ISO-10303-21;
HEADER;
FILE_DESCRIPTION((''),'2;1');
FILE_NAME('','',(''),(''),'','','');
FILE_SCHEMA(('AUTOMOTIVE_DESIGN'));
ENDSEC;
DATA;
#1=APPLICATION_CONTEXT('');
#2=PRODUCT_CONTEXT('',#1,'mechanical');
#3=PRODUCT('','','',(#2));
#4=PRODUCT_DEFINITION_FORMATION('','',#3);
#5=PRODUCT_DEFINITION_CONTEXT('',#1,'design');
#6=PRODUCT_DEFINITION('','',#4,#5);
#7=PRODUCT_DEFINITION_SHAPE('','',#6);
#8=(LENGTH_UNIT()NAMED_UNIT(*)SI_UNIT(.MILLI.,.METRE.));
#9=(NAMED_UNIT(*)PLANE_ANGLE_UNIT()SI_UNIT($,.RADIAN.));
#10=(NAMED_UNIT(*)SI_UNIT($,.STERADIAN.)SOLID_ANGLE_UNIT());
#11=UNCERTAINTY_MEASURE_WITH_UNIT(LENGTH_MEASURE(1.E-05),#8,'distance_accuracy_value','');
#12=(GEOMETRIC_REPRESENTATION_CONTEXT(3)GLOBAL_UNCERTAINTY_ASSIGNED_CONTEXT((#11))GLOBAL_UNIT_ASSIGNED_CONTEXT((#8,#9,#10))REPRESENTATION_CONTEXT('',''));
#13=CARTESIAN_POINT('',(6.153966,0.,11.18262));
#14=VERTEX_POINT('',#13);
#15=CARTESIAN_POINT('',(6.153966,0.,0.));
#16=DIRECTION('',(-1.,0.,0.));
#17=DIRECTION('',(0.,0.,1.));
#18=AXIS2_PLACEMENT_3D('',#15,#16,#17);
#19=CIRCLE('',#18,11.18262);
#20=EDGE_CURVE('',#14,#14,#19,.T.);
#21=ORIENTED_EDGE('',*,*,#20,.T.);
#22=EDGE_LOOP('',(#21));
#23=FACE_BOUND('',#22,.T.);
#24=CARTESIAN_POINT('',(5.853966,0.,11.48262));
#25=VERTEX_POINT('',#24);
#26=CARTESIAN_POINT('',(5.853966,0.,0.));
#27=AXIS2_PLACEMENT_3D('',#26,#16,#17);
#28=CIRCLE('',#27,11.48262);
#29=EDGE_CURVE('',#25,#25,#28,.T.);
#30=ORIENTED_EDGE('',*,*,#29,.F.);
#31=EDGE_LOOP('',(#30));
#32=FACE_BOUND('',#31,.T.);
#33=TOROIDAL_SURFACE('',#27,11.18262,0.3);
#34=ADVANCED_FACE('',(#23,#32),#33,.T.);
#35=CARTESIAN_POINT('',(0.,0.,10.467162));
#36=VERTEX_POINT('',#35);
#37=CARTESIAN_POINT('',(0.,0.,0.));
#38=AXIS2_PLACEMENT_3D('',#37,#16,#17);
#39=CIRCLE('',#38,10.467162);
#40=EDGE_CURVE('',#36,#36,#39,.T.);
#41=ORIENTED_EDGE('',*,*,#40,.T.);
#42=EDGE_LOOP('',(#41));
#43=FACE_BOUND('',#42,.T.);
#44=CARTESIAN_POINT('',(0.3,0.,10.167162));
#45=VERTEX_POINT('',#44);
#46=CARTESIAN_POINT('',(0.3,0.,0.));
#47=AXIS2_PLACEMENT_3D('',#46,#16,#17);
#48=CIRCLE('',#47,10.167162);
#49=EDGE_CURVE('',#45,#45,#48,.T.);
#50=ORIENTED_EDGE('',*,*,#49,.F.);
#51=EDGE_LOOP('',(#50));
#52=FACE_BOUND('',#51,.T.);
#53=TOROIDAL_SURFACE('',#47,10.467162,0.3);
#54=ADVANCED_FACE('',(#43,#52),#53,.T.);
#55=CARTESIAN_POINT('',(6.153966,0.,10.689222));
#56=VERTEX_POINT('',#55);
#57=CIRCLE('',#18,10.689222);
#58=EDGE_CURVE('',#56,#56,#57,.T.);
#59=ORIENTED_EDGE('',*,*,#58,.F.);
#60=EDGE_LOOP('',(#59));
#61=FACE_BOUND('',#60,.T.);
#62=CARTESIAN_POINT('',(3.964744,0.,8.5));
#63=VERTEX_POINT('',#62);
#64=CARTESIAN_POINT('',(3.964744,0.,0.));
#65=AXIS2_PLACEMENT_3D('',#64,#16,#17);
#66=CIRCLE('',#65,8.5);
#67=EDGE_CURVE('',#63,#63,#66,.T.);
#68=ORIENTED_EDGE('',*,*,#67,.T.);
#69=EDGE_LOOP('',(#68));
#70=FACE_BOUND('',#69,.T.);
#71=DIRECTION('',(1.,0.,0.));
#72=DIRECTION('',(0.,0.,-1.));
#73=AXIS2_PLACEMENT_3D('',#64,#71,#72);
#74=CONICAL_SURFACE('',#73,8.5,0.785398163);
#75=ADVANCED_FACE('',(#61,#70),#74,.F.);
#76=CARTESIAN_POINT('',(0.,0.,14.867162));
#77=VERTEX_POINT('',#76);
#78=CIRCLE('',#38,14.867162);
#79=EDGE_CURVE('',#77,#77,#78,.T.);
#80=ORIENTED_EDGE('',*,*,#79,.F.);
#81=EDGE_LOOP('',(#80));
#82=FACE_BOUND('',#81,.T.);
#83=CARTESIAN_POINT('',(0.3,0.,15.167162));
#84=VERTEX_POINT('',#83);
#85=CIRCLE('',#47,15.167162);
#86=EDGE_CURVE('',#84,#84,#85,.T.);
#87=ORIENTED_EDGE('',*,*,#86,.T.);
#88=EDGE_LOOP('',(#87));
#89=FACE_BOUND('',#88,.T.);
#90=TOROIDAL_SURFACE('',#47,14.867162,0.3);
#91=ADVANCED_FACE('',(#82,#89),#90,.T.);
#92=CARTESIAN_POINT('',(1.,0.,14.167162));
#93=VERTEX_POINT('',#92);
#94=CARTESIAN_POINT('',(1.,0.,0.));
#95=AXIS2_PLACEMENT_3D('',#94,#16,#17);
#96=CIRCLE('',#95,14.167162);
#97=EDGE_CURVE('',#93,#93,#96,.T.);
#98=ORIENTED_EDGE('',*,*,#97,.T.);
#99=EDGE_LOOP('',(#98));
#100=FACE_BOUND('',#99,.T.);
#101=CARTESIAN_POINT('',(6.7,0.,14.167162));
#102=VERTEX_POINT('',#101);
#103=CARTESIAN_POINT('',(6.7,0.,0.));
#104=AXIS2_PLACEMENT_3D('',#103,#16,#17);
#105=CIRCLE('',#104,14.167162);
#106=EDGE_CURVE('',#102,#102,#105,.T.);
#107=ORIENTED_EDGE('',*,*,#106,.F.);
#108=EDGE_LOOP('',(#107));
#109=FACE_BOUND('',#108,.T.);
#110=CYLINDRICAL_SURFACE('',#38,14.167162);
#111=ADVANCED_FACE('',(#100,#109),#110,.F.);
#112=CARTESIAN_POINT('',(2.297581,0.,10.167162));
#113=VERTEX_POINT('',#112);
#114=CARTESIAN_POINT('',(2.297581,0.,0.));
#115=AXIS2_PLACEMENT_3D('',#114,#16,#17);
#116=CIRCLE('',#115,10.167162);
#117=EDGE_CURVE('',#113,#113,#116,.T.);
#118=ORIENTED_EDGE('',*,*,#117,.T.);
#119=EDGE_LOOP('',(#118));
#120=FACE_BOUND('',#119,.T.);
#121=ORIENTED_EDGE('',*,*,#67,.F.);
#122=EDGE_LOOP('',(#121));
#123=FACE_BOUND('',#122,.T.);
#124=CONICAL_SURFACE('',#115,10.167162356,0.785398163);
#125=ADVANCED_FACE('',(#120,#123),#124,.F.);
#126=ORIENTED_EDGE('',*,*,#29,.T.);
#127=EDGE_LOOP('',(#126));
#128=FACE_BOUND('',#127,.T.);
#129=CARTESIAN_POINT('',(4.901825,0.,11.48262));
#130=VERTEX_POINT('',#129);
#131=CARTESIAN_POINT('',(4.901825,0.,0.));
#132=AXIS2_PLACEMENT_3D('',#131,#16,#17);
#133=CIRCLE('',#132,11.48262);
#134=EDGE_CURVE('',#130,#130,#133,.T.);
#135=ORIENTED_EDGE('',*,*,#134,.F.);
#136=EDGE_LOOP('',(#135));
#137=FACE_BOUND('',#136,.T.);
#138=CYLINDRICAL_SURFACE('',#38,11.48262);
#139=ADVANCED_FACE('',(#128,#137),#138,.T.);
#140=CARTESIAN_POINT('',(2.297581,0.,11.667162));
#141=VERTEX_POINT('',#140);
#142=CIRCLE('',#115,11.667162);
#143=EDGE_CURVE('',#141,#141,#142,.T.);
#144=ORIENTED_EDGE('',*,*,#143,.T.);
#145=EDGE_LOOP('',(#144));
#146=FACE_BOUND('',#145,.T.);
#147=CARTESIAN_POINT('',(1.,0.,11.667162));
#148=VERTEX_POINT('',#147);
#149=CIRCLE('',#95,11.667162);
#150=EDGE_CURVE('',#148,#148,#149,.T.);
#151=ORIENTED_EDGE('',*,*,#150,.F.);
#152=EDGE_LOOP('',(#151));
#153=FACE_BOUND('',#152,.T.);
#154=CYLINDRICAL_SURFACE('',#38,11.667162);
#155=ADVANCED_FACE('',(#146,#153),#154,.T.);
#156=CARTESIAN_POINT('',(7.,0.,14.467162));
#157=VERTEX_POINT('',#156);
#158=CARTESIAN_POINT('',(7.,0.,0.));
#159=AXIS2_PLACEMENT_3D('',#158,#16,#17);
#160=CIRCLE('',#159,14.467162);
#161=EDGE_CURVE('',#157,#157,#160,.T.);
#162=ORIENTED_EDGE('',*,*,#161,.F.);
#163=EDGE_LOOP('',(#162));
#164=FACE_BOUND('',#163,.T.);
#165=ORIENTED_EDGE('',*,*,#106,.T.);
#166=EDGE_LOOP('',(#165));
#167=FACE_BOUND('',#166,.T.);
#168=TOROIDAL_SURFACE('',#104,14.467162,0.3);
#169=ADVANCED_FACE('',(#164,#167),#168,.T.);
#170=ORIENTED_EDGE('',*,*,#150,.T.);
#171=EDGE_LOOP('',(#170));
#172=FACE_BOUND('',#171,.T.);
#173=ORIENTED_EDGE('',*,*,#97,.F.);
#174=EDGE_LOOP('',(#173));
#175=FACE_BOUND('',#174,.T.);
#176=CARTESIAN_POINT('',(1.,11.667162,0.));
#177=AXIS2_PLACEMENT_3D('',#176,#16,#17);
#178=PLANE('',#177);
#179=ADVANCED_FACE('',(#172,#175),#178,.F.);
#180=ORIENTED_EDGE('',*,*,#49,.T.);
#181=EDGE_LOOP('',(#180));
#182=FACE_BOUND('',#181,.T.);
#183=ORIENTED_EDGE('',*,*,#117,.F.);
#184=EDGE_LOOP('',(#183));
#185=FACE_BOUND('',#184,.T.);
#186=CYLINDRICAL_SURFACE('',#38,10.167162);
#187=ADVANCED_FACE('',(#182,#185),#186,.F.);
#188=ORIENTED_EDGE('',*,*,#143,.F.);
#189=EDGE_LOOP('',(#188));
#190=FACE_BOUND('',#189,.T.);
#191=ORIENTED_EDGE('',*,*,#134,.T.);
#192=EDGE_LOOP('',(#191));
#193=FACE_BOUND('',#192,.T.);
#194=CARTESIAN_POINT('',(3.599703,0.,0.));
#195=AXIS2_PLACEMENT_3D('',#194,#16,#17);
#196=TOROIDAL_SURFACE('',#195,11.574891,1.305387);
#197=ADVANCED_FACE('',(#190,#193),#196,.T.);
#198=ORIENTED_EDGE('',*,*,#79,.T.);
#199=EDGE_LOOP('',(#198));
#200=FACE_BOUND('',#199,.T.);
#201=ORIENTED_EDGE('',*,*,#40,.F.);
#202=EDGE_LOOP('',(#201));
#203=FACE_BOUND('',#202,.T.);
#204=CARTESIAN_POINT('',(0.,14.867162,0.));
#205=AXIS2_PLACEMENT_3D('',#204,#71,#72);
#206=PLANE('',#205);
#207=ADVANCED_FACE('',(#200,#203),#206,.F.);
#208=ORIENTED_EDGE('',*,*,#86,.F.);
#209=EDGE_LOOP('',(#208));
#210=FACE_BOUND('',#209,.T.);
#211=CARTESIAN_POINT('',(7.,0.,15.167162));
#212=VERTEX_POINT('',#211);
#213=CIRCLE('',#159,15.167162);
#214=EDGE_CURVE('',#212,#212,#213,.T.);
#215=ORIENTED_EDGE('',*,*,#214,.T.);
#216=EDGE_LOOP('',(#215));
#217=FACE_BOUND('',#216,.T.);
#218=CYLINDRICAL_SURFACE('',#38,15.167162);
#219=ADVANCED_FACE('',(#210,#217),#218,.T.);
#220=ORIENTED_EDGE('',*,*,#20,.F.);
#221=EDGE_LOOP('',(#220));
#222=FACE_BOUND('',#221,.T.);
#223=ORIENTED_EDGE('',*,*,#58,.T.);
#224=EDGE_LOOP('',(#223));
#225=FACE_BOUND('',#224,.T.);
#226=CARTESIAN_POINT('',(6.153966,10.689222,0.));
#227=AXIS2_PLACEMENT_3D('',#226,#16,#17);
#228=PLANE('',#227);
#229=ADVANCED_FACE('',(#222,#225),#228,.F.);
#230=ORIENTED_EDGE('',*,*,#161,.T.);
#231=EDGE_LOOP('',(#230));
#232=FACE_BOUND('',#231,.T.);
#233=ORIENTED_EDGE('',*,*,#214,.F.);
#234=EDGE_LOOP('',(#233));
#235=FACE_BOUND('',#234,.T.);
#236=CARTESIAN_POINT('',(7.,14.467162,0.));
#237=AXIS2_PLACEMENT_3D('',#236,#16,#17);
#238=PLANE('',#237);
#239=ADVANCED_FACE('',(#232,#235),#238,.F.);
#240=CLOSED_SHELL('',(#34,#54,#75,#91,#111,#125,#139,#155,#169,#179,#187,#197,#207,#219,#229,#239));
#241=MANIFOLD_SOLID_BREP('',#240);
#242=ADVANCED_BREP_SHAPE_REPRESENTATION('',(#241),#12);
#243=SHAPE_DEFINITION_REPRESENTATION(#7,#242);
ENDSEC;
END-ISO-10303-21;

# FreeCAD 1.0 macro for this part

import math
import FreeCAD as App
import Part
import Sketcher
Q = App.Units.Quantity

doc = App.newDocument("Part")
body = doc.addObject("PartDesign::Body", "Body")

# Sketch on XY plane
sketch1 = body.newObject("Sketcher::SketchObject", "Sketch")
sketch1.AttachmentSupport = (doc.getObject("XY_Plane"), [""])
sketch1.MapMode = "FlatFace"
sketch1.addGeometry(Part.LineSegment(App.Vector(7, 15.17, 0), App.Vector(0.3, 15.17, 0)), False)
sketch1.addGeometry(Part.ArcOfCircle(Part.Circle(App.Vector(0.3, 14.87, 0), App.Vector(0, 0, 1), 0.3), math.radians(90), math.radians(180)), False)
sketch1.addGeometry(Part.LineSegment(App.Vector(0, 14.87, 0), App.Vector(0, 10.47, 0)), False)
sketch1.addGeometry(Part.ArcOfCircle(Part.Circle(App.Vector(0.3, 10.47, 0), App.Vector(0, 0, 1), 0.3), math.radians(-180), math.radians(-90)), False)
sketch1.addGeometry(Part.LineSegment(App.Vector(0.3, 10.17, 0), App.Vector(2.3, 10.17, 0)), False)
sketch1.addGeometry(Part.LineSegment(App.Vector(2.3, 10.17, 0), App.Vector(3.96, 8.5, 0)), False)
sketch1.addGeometry(Part.LineSegment(App.Vector(3.96, 8.5, 0), App.Vector(6.15, 10.69, 0)), False)
sketch1.addGeometry(Part.LineSegment(App.Vector(6.15, 10.69, 0), App.Vector(6.15, 11.18, 0)), False)
sketch1.addGeometry(Part.ArcOfCircle(Part.Circle(App.Vector(5.85, 11.18, 0), App.Vector(0, 0, 1), 0.3), math.radians(0), math.radians(90)), False)
sketch1.addGeometry(Part.LineSegment(App.Vector(5.85, 11.48, 0), App.Vector(4.9, 11.48, 0)), False)
sketch1.addGeometry(Part.ArcOfCircle(Part.Circle(App.Vector(3.6, 11.57, 0), App.Vector(0, 0, 1), 1.31), math.radians(-4), math.radians(176)), False)
sketch1.addGeometry(Part.LineSegment(App.Vector(2.3, 11.67, 0), App.Vector(1, 11.67, 0)), False)
sketch1.addGeometry(Part.LineSegment(App.Vector(1, 11.67, 0), App.Vector(1, 14.17, 0)), False)
sketch1.addGeometry(Part.LineSegment(App.Vector(1, 14.17, 0), App.Vector(6.7, 14.17, 0)), False)
sketch1.addGeometry(Part.ArcOfCircle(Part.Circle(App.Vector(6.7, 14.47, 0), App.Vector(0, 0, 1), 0.3), math.radians(-90), math.radians(0)), False)
sketch1.addGeometry(Part.LineSegment(App.Vector(7, 14.47, 0), App.Vector(7, 15.17, 0)), False)
sketch1.addConstraint(Sketcher.Constraint("Tangent", 0, 2, 1, 1))
sketch1.addConstraint(Sketcher.Constraint("Tangent", 1, 2, 2, 1))
sketch1.addConstraint(Sketcher.Constraint("Tangent", 2, 2, 3, 1))
sketch1.addConstraint(Sketcher.Constraint("Tangent", 3, 2, 4, 1))
sketch1.addConstraint(Sketcher.Constraint("Coincident", 4, 2, 5, 1))
sketch1.addConstraint(Sketcher.Constraint("Coincident", 5, 2, 6, 1))
sketch1.addConstraint(Sketcher.Constraint("Coincident", 6, 2, 7, 1))
sketch1.addConstraint(Sketcher.Constraint("Tangent", 7, 2, 8, 1))
sketch1.addConstraint(Sketcher.Constraint("Tangent", 8, 2, 9, 1))
sketch1.addConstraint(Sketcher.Constraint("Coincident", 9, 2, 10, 1))
sketch1.addConstraint(Sketcher.Constraint("Coincident", 10, 2, 11, 1))
sketch1.addConstraint(Sketcher.Constraint("Coincident", 11, 2, 12, 1))
sketch1.addConstraint(Sketcher.Constraint("Coincident", 12, 2, 13, 1))
sketch1.addConstraint(Sketcher.Constraint("Tangent", 13, 2, 14, 1))
sketch1.addConstraint(Sketcher.Constraint("Tangent", 14, 2, 15, 1))
sketch1.addConstraint(Sketcher.Constraint("Coincident", 15, 2, 0, 1))
sketch1.addConstraint(Sketcher.Constraint("Horizontal", 0))
sketch1.addConstraint(Sketcher.Constraint("Vertical", 2))
sketch1.addConstraint(Sketcher.Constraint("Horizontal", 4))
sketch1.addConstraint(Sketcher.Constraint("Vertical", 7))
sketch1.addConstraint(Sketcher.Constraint("Horizontal", 9))
sketch1.addConstraint(Sketcher.Constraint("Horizontal", 11))
sketch1.addConstraint(Sketcher.Constraint("Vertical", 12))
sketch1.addConstraint(Sketcher.Constraint("Horizontal", 13))
sketch1.addConstraint(Sketcher.Constraint("Vertical", 15))
sketch1.addConstraint(Sketcher.Constraint("Equal", 1, 3))
sketch1.addConstraint(Sketcher.Constraint("Equal", 3, 8))
sketch1.addConstraint(Sketcher.Constraint("Equal", 8, 14))
sketch1.addConstraint(Sketcher.Constraint("PointOnObject", 1, 2, -2))
sketch1.addConstraint(Sketcher.Constraint("Perpendicular", 5, 6))
sketch1.addConstraint(Sketcher.Constraint("Vertical", 4, 2, 10, 2))
sketch1.addConstraint(Sketcher.Constraint("Radius", 1, 0.3))
sketch1.addConstraint(Sketcher.Constraint("Angle", 5, Q("-45 deg")))
sketch1.addConstraint(Sketcher.Constraint("DistanceX", 0, 2, 0, 1, 6.7))
sketch1.addConstraint(Sketcher.Constraint("DistanceX", 13, 1, 13, 2, 5.7))
sketch1.addConstraint(Sketcher.Constraint("DistanceY", 2, 2, 2, 1, 4.4))
sketch1.addConstraint(Sketcher.Constraint("DistanceY", 12, 1, 12, 2, 2.5))
sketch1.addConstraint(Sketcher.Constraint("DistanceY", 15, 1, 15, 2, 0.7))
sketch1.addConstraint(Sketcher.Constraint("DistanceY", -1, 1, 5, 2, 8.5))
sketch1.addConstraint(Sketcher.Constraint("Radius", 10, 1.305387))
sketch1.addConstraint(Sketcher.Constraint("DistanceX", 4, 1, 4, 2, 1.997581))
sketch1.addConstraint(Sketcher.Constraint("DistanceX", 9, 2, 9, 1, 0.952141))
sketch1.addConstraint(Sketcher.Constraint("DistanceY", 7, 1, 7, 2, 0.493398))
sketch1.addConstraint(Sketcher.Constraint("DistanceY", -1, 1, 8, 3, 11.18262))
sketch1.addConstraint(Sketcher.Constraint("DistanceY", -1, 1, 10, 3, 11.574891))
revolution = body.newObject("PartDesign::Revolution", "Revolution")
revolution.Profile = sketch1
revolution.ReferenceAxis = (sketch1, ["H_Axis"])
revolution.Angle = 360

doc.recompute()
